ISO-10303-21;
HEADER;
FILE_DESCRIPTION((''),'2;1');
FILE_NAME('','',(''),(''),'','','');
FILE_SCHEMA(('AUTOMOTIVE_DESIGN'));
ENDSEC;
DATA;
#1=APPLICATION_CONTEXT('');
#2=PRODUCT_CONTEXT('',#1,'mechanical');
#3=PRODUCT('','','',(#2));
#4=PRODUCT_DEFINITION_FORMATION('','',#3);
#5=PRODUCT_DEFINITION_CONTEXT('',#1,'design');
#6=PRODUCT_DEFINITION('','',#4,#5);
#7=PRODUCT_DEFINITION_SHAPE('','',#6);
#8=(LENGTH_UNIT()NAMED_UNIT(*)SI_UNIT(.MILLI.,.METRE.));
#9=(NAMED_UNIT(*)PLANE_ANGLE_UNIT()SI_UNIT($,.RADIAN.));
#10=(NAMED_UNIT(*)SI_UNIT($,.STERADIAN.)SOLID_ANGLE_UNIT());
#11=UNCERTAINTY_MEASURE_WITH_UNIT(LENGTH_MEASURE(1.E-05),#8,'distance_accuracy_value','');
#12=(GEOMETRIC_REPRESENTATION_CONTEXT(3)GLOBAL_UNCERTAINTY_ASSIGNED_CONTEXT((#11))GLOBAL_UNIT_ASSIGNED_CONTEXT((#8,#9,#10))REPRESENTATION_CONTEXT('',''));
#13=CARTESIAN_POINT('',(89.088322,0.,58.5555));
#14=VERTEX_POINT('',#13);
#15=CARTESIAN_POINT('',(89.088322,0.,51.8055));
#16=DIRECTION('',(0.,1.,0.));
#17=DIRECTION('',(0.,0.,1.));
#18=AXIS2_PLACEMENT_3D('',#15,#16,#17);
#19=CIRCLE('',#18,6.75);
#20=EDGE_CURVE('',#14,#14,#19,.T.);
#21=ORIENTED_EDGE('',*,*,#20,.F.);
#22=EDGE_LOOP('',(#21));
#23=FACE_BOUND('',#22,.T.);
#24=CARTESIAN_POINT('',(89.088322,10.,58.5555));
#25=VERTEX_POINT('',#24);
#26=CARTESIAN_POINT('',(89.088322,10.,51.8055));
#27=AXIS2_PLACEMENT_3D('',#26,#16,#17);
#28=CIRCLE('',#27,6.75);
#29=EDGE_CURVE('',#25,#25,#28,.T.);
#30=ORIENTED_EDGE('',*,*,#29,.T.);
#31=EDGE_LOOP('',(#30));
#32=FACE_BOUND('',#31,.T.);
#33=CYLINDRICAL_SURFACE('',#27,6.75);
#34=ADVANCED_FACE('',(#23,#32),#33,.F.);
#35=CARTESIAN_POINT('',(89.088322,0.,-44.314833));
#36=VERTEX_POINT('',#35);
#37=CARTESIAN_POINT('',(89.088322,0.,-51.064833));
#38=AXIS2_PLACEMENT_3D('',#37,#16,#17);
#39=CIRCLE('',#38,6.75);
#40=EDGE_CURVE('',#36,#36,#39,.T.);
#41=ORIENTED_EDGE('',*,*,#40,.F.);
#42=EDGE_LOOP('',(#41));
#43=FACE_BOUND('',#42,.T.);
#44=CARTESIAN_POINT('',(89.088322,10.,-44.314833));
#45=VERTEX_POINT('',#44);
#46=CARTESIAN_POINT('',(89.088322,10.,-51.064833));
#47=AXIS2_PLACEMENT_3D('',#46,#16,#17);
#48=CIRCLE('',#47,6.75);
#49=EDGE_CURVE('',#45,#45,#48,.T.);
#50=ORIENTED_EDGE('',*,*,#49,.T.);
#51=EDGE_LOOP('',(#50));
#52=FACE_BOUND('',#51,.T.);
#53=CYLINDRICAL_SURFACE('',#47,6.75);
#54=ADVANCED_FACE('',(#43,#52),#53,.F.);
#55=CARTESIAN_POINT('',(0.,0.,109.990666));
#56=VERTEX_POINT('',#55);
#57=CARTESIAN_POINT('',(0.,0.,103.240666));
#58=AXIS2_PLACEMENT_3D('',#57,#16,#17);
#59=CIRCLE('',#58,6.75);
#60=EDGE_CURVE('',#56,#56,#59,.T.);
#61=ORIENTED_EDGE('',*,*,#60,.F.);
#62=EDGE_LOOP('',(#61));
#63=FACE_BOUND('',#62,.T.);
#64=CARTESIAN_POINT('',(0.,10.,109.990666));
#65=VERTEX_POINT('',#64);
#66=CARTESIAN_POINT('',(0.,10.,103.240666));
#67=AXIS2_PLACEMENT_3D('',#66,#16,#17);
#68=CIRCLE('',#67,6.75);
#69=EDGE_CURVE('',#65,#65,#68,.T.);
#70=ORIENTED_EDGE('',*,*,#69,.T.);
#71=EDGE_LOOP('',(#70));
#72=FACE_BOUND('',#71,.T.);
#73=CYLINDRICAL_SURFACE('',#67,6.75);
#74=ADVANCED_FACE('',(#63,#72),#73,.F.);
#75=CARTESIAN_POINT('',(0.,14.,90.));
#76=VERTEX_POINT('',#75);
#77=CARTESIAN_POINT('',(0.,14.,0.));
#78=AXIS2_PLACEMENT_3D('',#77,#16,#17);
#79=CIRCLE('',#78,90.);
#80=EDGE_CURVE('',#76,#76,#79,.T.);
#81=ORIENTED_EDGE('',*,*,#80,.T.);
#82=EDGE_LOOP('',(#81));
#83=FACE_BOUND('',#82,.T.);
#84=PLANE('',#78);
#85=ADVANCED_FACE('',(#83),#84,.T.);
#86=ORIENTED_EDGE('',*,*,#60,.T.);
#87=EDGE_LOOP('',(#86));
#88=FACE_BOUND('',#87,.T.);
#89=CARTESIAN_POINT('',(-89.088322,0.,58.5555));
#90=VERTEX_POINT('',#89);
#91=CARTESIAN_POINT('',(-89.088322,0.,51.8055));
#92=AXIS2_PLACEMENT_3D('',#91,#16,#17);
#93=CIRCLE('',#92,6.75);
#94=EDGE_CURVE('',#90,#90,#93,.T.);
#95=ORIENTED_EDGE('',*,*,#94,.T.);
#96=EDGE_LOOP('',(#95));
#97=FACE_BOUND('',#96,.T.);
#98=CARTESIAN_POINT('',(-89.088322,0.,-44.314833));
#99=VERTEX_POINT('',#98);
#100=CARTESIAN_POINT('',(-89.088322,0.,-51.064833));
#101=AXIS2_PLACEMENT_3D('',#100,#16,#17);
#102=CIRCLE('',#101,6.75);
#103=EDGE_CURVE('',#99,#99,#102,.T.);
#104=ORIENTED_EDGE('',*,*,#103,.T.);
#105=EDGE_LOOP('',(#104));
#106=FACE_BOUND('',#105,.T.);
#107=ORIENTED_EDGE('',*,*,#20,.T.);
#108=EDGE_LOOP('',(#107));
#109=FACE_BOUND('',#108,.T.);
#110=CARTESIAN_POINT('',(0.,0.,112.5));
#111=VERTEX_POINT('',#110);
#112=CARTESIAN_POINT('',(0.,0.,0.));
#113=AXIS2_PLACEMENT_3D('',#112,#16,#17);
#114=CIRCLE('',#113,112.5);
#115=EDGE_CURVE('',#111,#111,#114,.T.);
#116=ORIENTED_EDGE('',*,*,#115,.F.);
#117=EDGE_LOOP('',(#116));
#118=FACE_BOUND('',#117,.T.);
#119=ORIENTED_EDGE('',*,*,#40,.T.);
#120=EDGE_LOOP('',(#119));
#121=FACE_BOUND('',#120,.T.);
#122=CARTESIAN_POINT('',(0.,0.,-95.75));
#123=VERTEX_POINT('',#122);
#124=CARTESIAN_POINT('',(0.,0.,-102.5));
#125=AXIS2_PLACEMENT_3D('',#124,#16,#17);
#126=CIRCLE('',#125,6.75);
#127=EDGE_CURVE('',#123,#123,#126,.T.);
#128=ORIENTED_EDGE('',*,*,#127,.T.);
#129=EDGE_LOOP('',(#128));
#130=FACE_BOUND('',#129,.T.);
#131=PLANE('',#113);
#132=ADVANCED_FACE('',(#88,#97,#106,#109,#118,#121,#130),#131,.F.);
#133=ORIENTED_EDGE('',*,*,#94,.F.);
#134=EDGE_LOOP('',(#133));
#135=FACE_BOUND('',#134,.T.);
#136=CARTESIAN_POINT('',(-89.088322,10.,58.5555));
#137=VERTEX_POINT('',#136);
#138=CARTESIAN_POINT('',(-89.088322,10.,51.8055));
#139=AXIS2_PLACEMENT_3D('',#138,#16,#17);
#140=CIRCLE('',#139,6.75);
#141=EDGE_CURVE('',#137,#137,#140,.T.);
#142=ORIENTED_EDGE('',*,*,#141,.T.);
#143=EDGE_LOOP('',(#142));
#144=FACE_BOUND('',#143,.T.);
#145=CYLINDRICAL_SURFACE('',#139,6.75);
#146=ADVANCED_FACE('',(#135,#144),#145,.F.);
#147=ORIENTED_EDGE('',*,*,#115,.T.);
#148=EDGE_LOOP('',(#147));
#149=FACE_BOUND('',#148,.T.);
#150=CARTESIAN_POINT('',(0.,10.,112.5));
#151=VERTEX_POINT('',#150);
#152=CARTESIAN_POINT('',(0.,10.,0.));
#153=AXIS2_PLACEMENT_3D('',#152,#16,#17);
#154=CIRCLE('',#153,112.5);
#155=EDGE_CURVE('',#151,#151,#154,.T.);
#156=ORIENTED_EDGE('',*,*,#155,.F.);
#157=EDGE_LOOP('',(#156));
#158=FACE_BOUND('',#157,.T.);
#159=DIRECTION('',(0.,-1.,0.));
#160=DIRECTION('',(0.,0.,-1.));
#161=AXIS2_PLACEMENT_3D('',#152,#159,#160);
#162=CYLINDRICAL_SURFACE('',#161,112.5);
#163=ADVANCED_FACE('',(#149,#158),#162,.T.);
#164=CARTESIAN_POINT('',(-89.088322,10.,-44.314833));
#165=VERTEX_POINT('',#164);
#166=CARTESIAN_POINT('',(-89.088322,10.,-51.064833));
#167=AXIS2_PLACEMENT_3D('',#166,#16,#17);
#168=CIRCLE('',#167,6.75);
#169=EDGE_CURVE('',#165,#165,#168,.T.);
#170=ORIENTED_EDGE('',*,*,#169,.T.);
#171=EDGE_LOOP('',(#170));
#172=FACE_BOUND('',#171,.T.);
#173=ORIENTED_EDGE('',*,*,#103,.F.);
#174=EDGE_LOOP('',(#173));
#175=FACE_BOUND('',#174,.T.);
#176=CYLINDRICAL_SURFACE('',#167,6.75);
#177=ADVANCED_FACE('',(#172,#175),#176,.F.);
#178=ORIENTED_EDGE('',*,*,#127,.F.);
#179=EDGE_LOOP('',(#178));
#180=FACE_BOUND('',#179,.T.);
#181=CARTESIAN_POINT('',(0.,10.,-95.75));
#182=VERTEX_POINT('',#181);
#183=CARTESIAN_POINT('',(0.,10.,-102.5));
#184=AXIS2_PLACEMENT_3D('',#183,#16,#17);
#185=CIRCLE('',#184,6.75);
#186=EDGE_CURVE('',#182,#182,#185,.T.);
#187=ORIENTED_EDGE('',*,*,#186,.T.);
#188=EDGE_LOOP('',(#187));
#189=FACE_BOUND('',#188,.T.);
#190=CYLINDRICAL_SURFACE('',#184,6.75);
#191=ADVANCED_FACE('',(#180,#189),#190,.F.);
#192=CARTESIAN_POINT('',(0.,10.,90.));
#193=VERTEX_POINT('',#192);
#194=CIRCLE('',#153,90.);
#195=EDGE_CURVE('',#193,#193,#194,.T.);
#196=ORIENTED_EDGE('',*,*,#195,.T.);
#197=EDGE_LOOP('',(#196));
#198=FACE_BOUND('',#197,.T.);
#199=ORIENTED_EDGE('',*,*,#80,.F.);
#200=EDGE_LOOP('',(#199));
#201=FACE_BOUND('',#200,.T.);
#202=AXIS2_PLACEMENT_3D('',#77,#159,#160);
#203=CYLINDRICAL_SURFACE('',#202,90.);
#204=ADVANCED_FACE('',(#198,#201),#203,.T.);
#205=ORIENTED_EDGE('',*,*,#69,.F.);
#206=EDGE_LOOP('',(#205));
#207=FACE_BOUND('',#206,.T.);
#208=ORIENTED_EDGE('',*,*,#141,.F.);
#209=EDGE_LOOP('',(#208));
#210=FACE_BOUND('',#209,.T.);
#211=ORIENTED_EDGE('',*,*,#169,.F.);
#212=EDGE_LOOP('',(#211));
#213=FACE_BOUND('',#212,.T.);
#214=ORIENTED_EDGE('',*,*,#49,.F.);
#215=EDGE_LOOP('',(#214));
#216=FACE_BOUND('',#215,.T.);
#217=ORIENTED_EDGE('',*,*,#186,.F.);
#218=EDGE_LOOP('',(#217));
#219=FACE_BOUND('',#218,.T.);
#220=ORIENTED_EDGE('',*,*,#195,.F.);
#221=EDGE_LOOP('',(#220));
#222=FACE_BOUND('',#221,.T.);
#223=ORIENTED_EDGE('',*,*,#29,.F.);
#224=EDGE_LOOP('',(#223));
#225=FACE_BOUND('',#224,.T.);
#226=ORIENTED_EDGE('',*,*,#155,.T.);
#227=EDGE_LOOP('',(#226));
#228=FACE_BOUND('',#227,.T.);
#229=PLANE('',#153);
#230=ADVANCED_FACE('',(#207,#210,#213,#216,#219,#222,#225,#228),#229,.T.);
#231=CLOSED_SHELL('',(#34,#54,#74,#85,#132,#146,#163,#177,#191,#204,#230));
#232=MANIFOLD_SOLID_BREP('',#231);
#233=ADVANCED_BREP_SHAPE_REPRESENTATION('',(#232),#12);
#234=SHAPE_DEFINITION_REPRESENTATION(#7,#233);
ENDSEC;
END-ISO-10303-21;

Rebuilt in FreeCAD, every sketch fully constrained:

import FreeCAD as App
import Part
import Sketcher
Q = App.Units.Quantity

doc = App.newDocument("Part")
params = doc.addObject("Spreadsheet::Sheet", "Params")
for row, (alias, value) in enumerate([
    ("sketch1_diameter", "225 mm"),
    ("pad1_length", "10 mm"),
    ("sketch2_width", "43.5 mm"),
    ("sketch2_height", "6.75 mm"),
    ("groove_angle", "360 deg"),
    ("sketch3_diameter", "180 mm"),
    ("pad2_length", "4 mm"),
], start=1):
    params.set(f"A{row}", alias)
    params.set(f"B{row}", "=" + value)
    params.setAlias(f"B{row}", alias)

body = doc.addObject("PartDesign::Body", "Body")

# Sketch on XZ plane
sketch1 = body.newObject("Sketcher::SketchObject", "Sketch")
sketch1.AttachmentSupport = (doc.getObject("XZ_Plane"), [""])
sketch1.MapMode = "FlatFace"
sketch1.addGeometry(Part.Circle(App.Vector(0, 0, 0), App.Vector(0, 0, 1), 112), False)
sketch1.addConstraint(Sketcher.Constraint("Coincident", 0, 3, -1, 1))
sketch1.addConstraint(Sketcher.Constraint("Diameter", 0, Q("225 mm")))
sketch1.setExpression("Constraints[1]", "Params.sketch1_diameter")
pad1 = body.newObject("PartDesign::Pad", "Pad")
pad1.Profile = sketch1
pad1.setExpression("Length", "Params.pad1_length")
pad1.Reversed = True

# Sketch on YZ plane
sketch2 = body.newObject("Sketcher::SketchObject", "Sketch001")
sketch2.AttachmentSupport = (doc.getObject("YZ_Plane"), [""])
sketch2.MapMode = "FlatFace"
sketch2.addGeometry(Part.LineSegment(App.Vector(-38, -102, 0), App.Vector(10, -102, 0)), False)
sketch2.addGeometry(Part.LineSegment(App.Vector(10, -102, 0), App.Vector(10, -96, 0)), False)
sketch2.addGeometry(Part.LineSegment(App.Vector(10, -96, 0), App.Vector(-34, -96, 0)), False)
sketch2.addGeometry(Part.LineSegment(App.Vector(-34, -96, 0), App.Vector(-38, -102, 0)), False)
sketch2.addGeometry(Part.LineSegment(App.Vector(10, -102, 0), App.Vector(-38, -102, 0)), True)  # axis
sketch2.addConstraint(Sketcher.Constraint("Coincident", 0, 2, 1, 1))
sketch2.addConstraint(Sketcher.Constraint("Coincident", 1, 2, 2, 1))
sketch2.addConstraint(Sketcher.Constraint("Coincident", 2, 2, 3, 1))
sketch2.addConstraint(Sketcher.Constraint("Coincident", 3, 2, 0, 1))
sketch2.addConstraint(Sketcher.Constraint("Horizontal", 0))
sketch2.addConstraint(Sketcher.Constraint("Vertical", 1))
sketch2.addConstraint(Sketcher.Constraint("Horizontal", 2))
sketch2.addConstraint(Sketcher.Constraint("Horizontal", 4))
sketch2.addConstraint(Sketcher.Constraint("Coincident", 4, 1, 0, 2))
sketch2.addConstraint(Sketcher.Constraint("Equal", 0, 4))
sketch2.addConstraint(Sketcher.Constraint("Angle", 3, Q("-121 deg")))
sketch2.addConstraint(Sketcher.Constraint("DistanceX", 2, 2, 2, 1, Q("43.5 mm")))
sketch2.addConstraint(Sketcher.Constraint("DistanceX", -1, 1, 0, 2, Q("10 mm")))
sketch2.addConstraint(Sketcher.Constraint("DistanceY", 1, 1, 1, 2, Q("6.75 mm")))
sketch2.addConstraint(Sketcher.Constraint("DistanceY", 0, 2, -1, 1, Q("102.5 mm")))
sketch2.setExpression("Constraints[11]", "Params.sketch2_width")
sketch2.setExpression("Constraints[13]", "Params.sketch2_height")
groove = body.newObject("PartDesign::Groove", "Groove")
groove.Profile = sketch2
groove.ReferenceAxis = (sketch2, ["Axis0"])
groove.setExpression("Angle", "Params.groove_angle")
doc.recompute()

datumline = body.newObject("PartDesign::Line", "DatumLine")
datumline.Placement = App.Placement(App.Vector(0, 0, 0.370333), App.Rotation(App.Vector(0, 0, 1), App.Vector(0, 1, 0)))
polarpattern = body.newObject("PartDesign::PolarPattern", "PolarPattern")
polarpattern.Originals = [groove]
polarpattern.Axis = (datumline, [""])
polarpattern.Angle = 360
polarpattern.Occurrences = 6
body.Tip = polarpattern

# Sketch on XZ plane
sketch3 = body.newObject("Sketcher::SketchObject", "Sketch002")
sketch3.AttachmentSupport = (doc.getObject("XZ_Plane"), [""])
sketch3.MapMode = "FlatFace"
sketch3.AttachmentOffset = App.Placement(App.Vector(0, 0, -10), App.Rotation())
sketch3.addGeometry(Part.Circle(App.Vector(0, 0, 0), App.Vector(0, 0, 1), 90), False)
sketch3.addConstraint(Sketcher.Constraint("Coincident", 0, 3, -1, 1))
sketch3.addConstraint(Sketcher.Constraint("Diameter", 0, Q("180 mm")))
sketch3.setExpression("Constraints[1]", "Params.sketch3_diameter")
pad2 = body.newObject("PartDesign::Pad", "Pad001")
pad2.Profile = sketch3
pad2.setExpression("Length", "Params.pad2_length")
pad2.Reversed = True

doc.recompute()
